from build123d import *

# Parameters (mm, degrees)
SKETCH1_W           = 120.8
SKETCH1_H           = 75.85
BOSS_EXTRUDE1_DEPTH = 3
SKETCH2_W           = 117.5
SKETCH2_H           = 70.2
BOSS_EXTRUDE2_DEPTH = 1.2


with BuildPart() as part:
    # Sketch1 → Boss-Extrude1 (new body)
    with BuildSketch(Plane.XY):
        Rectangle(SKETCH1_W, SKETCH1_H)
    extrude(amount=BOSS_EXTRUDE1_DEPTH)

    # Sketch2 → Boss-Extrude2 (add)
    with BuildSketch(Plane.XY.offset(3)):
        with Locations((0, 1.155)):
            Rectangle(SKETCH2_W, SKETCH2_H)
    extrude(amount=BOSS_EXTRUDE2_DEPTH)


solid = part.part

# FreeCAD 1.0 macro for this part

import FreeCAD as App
import Part
import Sketcher
Q = App.Units.Quantity

doc = App.newDocument("Part")
body = doc.addObject("PartDesign::Body", "Body")

# Sketch on XY plane
sketch1 = body.newObject("Sketcher::SketchObject", "Sketch")
sketch1.AttachmentSupport = (doc.getObject("XY_Plane"), [""])
sketch1.MapMode = "FlatFace"
sketch1.addGeometry(Part.LineSegment(App.Vector(-60.4, 37.925, 0), App.Vector(-60.4, -37.925, 0)), False)
sketch1.addGeometry(Part.LineSegment(App.Vector(-60.4, -37.925, 0), App.Vector(60.4, -37.925, 0)), False)
sketch1.addGeometry(Part.LineSegment(App.Vector(60.4, -37.925, 0), App.Vector(60.4, 37.925, 0)), False)
sketch1.addGeometry(Part.LineSegment(App.Vector(60.4, 37.925, 0), App.Vector(-60.4, 37.925, 0)), False)
sketch1.addConstraint(Sketcher.Constraint("Coincident", 0, 2, 1, 1))
sketch1.addConstraint(Sketcher.Constraint("Coincident", 1, 2, 2, 1))
sketch1.addConstraint(Sketcher.Constraint("Coincident", 2, 2, 3, 1))
sketch1.addConstraint(Sketcher.Constraint("Coincident", 3, 2, 0, 1))
sketch1.addConstraint(Sketcher.Constraint("Vertical", 0))
sketch1.addConstraint(Sketcher.Constraint("Horizontal", 1))
sketch1.addConstraint(Sketcher.Constraint("Vertical", 2))
sketch1.addConstraint(Sketcher.Constraint("Horizontal", 3))
sketch1.addConstraint(Sketcher.Constraint("Symmetric", 0, 2, 2, 2, -1, 1))
sketch1.addConstraint(Sketcher.Constraint("DistanceX", 1, 1, 1, 2, Q("120.8 mm")))
sketch1.addConstraint(Sketcher.Constraint("DistanceY", 0, 2, 0, 1, Q("75.85 mm")))
pad1 = body.newObject("PartDesign::Pad", "Pad")
pad1.Profile = sketch1
pad1.Length = 3

# Sketch on XY plane
sketch2 = body.newObject("Sketcher::SketchObject", "Sketch001")
sketch2.AttachmentSupport = (doc.getObject("XY_Plane"), [""])
sketch2.MapMode = "FlatFace"
sketch2.AttachmentOffset = App.Placement(App.Vector(0, 0, 3), App.Rotation())
sketch2.addGeometry(Part.LineSegment(App.Vector(-58.75, 36.255, 0), App.Vector(-58.75, -33.945, 0)), False)
sketch2.addGeometry(Part.LineSegment(App.Vector(-58.75, -33.945, 0), App.Vector(58.75, -33.945, 0)), False)
sketch2.addGeometry(Part.LineSegment(App.Vector(58.75, -33.945, 0), App.Vector(58.75, 36.255, 0)), False)
sketch2.addGeometry(Part.LineSegment(App.Vector(58.75, 36.255, 0), App.Vector(-58.75, 36.255, 0)), False)
sketch2.addConstraint(Sketcher.Constraint("Coincident", 0, 2, 1, 1))
sketch2.addConstraint(Sketcher.Constraint("Coincident", 1, 2, 2, 1))
sketch2.addConstraint(Sketcher.Constraint("Coincident", 2, 2, 3, 1))
sketch2.addConstraint(Sketcher.Constraint("Coincident", 3, 2, 0, 1))
sketch2.addConstraint(Sketcher.Constraint("Vertical", 0))
sketch2.addConstraint(Sketcher.Constraint("Horizontal", 1))
sketch2.addConstraint(Sketcher.Constraint("Vertical", 2))
sketch2.addConstraint(Sketcher.Constraint("Horizontal", 3))
sketch2.addConstraint(Sketcher.Constraint("DistanceX", 1, 1, 1, 2, Q("117.5 mm")))
sketch2.addConstraint(Sketcher.Constraint("DistanceY", 0, 2, 0, 1, Q("70.2 mm")))
sketch2.addConstraint(Sketcher.Constraint("DistanceX", 0, 2, -1, 1, Q("58.75 mm")))
sketch2.addConstraint(Sketcher.Constraint("DistanceY", 0, 2, -1, 1, Q("33.945 mm")))
pad2 = body.newObject("PartDesign::Pad", "Pad001")
pad2.Profile = sketch2
pad2.Length = 1.2

doc.recompute()
